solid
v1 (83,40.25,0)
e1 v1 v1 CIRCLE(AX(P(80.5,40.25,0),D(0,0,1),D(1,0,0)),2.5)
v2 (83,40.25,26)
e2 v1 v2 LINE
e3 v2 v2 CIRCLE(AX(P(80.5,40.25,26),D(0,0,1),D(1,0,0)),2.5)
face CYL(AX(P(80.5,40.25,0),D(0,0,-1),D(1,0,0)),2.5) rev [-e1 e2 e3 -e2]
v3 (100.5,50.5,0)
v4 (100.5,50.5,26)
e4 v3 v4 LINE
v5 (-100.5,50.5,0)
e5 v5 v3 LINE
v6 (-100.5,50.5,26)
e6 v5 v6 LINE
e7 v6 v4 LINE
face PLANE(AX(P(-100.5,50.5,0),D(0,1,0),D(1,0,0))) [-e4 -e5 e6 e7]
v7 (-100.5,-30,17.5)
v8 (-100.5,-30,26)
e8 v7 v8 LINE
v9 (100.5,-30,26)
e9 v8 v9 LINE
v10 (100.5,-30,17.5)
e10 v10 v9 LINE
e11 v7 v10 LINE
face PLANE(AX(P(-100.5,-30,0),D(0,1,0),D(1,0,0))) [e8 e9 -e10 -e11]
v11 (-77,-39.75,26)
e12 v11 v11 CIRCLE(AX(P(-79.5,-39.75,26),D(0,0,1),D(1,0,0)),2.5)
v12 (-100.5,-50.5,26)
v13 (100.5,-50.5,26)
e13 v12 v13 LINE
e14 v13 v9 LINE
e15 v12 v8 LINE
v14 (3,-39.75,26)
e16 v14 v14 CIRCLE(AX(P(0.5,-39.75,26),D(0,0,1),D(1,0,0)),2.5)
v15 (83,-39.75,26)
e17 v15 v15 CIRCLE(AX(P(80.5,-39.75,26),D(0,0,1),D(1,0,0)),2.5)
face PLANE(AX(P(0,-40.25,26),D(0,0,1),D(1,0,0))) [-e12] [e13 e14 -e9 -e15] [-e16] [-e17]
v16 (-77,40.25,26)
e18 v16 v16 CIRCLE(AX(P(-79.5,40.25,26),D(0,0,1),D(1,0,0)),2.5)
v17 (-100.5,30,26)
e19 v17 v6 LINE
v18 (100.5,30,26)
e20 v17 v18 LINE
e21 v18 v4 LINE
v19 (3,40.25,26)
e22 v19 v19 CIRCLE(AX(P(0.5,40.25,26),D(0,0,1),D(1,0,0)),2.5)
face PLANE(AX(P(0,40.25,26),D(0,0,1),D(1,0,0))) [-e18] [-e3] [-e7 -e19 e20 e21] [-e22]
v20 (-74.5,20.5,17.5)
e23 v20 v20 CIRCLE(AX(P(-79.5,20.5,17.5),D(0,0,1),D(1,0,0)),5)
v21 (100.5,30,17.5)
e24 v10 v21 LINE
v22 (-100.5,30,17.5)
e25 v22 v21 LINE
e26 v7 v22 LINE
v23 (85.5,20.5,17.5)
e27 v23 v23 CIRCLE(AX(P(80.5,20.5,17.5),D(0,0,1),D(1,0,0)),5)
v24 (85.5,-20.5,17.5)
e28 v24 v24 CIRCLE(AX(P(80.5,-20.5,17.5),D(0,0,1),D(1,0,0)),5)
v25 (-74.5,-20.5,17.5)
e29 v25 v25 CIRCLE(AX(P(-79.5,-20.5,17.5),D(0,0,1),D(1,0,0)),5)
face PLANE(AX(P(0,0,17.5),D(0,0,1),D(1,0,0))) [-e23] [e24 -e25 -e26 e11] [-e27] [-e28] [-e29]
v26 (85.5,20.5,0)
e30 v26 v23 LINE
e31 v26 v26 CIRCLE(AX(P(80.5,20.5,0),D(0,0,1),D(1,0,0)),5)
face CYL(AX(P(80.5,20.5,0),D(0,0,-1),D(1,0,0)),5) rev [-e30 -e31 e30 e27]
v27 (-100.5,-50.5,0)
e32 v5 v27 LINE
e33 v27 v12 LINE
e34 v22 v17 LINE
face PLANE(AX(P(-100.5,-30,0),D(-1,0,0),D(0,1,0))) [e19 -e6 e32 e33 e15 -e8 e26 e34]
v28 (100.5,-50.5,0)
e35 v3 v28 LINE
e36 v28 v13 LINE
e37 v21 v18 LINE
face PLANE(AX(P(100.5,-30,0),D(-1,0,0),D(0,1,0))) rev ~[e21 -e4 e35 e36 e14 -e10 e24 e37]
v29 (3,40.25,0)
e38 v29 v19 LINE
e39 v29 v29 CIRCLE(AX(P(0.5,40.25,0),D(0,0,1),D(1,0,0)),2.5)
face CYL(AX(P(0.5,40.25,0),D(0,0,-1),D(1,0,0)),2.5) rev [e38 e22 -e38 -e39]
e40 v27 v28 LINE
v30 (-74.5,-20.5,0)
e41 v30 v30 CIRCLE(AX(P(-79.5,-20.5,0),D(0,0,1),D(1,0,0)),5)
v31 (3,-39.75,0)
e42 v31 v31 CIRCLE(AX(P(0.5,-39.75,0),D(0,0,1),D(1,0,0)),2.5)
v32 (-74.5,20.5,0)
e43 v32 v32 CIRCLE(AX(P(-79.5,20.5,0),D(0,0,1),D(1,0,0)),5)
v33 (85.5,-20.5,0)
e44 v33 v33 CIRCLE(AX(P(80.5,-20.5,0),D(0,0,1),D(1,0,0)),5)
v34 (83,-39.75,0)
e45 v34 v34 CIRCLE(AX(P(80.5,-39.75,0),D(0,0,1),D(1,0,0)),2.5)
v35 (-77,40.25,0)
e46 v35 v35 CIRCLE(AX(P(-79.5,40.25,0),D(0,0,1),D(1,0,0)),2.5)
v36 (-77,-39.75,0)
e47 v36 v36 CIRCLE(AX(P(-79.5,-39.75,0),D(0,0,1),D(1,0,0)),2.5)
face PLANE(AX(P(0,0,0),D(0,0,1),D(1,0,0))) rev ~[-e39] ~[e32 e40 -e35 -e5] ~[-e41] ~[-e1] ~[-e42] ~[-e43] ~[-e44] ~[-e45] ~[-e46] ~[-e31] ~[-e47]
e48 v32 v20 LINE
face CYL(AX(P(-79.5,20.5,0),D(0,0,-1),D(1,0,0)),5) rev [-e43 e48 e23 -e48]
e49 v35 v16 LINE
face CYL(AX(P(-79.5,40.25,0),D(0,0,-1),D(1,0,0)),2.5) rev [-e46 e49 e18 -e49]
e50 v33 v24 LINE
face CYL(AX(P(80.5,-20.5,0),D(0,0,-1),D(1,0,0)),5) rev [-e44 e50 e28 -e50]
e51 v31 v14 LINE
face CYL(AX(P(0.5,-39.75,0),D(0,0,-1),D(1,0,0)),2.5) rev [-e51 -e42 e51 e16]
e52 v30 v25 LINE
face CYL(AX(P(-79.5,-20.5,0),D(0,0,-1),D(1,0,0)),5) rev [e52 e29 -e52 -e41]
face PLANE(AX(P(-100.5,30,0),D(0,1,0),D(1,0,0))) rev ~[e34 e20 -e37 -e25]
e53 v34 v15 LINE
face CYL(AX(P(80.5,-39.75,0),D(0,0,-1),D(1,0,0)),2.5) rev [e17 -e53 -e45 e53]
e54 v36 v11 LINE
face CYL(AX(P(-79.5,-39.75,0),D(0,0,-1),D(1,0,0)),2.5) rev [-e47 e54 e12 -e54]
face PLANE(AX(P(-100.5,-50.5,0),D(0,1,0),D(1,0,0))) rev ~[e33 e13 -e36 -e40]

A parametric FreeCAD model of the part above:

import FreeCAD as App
import Part
import Sketcher

V = App.Vector

doc = App.newDocument("Part")
params = doc.addObject("Spreadsheet::Sheet", "Params")
for row, (alias, value) in enumerate([
    ("sketch1_diameter", "5 mm"),
    ("sketch1_width", "201 mm"),
    ("sketch1_height", "20.5 mm"),
    ("pad1_length", "26 mm"),
    ("sketch2_diameter", "10 mm"),
    ("sketch2_width", "201 mm"),
    ("sketch2_height", "60 mm"),
    ("pad2_length", "17.5 mm"),
], start=1):
    params.set(f"A{row}", alias)
    params.set(f"B{row}", "=" + value)
    params.setAlias(f"B{row}", alias)

body = doc.addObject("PartDesign::Body", "Body")
body.AllowCompound = True

sketch1 = doc.addObject("Sketcher::SketchObject", "Sketch")
body.addObject(sketch1)
sketch1.AttachmentSupport = (doc.XY_Plane, [""])
sketch1.MapMode = "FlatFace"
sketch1.addGeometry([
    Part.LineSegment(V(-100.5, 50.5, 0), V(-100.5, 30, 0)),
    Part.LineSegment(V(-100.5, 30, 0), V(100.5, 30, 0)),
    Part.LineSegment(V(100.5, 30, 0), V(100.5, 50.5, 0)),
    Part.LineSegment(V(100.5, 50.5, 0), V(-100.5, 50.5, 0)),
    Part.Circle(V(-79.5, 40.25, 0), V(0, 0, 1), 2.5),
    Part.Circle(V(0.5, 40.25, 0), V(0, 0, 1), 2.5),
    Part.Circle(V(80.5, 40.25, 0), V(0, 0, 1), 2.5),
    Part.LineSegment(V(-100.5, -30, 0), V(-100.5, -50.5, 0)),
    Part.LineSegment(V(-100.5, -50.5, 0), V(100.5, -50.5, 0)),
    Part.LineSegment(V(100.5, -50.5, 0), V(100.5, -30, 0)),
    Part.LineSegment(V(100.5, -30, 0), V(-100.5, -30, 0)),
    Part.Circle(V(-79.5, -39.75, 0), V(0, 0, 1), 2.5),
    Part.Circle(V(0.5, -39.75, 0), V(0, 0, 1), 2.5),
    Part.Circle(V(80.5, -39.75, 0), V(0, 0, 1), 2.5),
], False)
sketch1.addConstraint([
    Sketcher.Constraint("Coincident", 0, 2, 1, 1),
    Sketcher.Constraint("Coincident", 1, 2, 2, 1),
    Sketcher.Constraint("Coincident", 2, 2, 3, 1),
    Sketcher.Constraint("Coincident", 3, 2, 0, 1),
    Sketcher.Constraint("Coincident", 7, 2, 8, 1),
    Sketcher.Constraint("Coincident", 8, 2, 9, 1),
    Sketcher.Constraint("Coincident", 9, 2, 10, 1),
    Sketcher.Constraint("Coincident", 10, 2, 7, 1),
    Sketcher.Constraint("Vertical", 0),
    Sketcher.Constraint("Horizontal", 1),
    Sketcher.Constraint("Vertical", 2),
    Sketcher.Constraint("Horizontal", 3),
    Sketcher.Constraint("Vertical", 7),
    Sketcher.Constraint("Horizontal", 8),
    Sketcher.Constraint("Vertical", 9),
    Sketcher.Constraint("Horizontal", 10),
    Sketcher.Constraint("Equal", 4, 5),
    Sketcher.Constraint("Equal", 5, 6),
    Sketcher.Constraint("Equal", 6, 11),
    Sketcher.Constraint("Equal", 11, 12),
    Sketcher.Constraint("Equal", 12, 13),
    Sketcher.Constraint("Symmetric", 2, 2, 7, 2, -1, 1),
    Sketcher.Constraint("Symmetric", 0, 2, 9, 2, -1, 1),
    Sketcher.Constraint("Horizontal", 4, 3, 5, 3),
    Sketcher.Constraint("Horizontal", 5, 3, 6, 3),
    Sketcher.Constraint("Horizontal", 11, 3, 12, 3),
    Sketcher.Constraint("Horizontal", 12, 3, 13, 3),
    Sketcher.Constraint("Vertical", 4, 3, 11, 3),
    Sketcher.Constraint("Vertical", 5, 3, 12, 3),
    Sketcher.Constraint("Vertical", 6, 3, 13, 3),
    Sketcher.Constraint("Vertical", 3, 2, 7, 2),
    Sketcher.Constraint("Diameter", 4, 5.0),
    Sketcher.Constraint("DistanceX", 1, 1, 1, 2, 201.0),
    Sketcher.Constraint("DistanceY", 0, 2, 0, 1, 20.5),
    Sketcher.Constraint("DistanceY", -1, 1, 0, 2, 30.0),
    Sketcher.Constraint("DistanceX", 4, 3, 5, 3, 80.0),
    Sketcher.Constraint("DistanceX", 5, 3, 6, 3, 80.0),
    Sketcher.Constraint("DistanceY", 11, 3, 4, 3, 80.0),
    Sketcher.Constraint("DistanceX", 0, 2, 4, 3, 21.0),
    Sketcher.Constraint("DistanceY", -1, 1, 4, 3, 40.25),
])
sketch1.setExpression("Constraints[31]", "Params.sketch1_diameter")
sketch1.setExpression("Constraints[32]", "Params.sketch1_width")
sketch1.setExpression("Constraints[33]", "Params.sketch1_height")
pad1 = doc.addObject("PartDesign::Pad", "Pad")
body.addObject(pad1)
pad1.Profile = sketch1
pad1.setExpression("Length", "Params.pad1_length")

sketch2 = doc.addObject("Sketcher::SketchObject", "Sketch001")
body.addObject(sketch2)
sketch2.AttachmentSupport = (doc.XY_Plane, [""])
sketch2.MapMode = "FlatFace"
sketch2.addGeometry([
    Part.LineSegment(V(-100.5, 30, 0), V(-100.5, -30, 0)),
    Part.LineSegment(V(-100.5, -30, 0), V(100.5, -30, 0)),
    Part.LineSegment(V(100.5, -30, 0), V(100.5, 30, 0)),
    Part.LineSegment(V(100.5, 30, 0), V(-100.5, 30, 0)),
    Part.Circle(V(-79.5, -20.5, 0), V(0, 0, 1), 5),
    Part.Circle(V(80.5, -20.5, 0), V(0, 0, 1), 5),
    Part.Circle(V(-79.5, 20.5, 0), V(0, 0, 1), 5),
    Part.Circle(V(80.5, 20.5, 0), V(0, 0, 1), 5),
], False)
sketch2.addConstraint([
    Sketcher.Constraint("Coincident", 0, 2, 1, 1),
    Sketcher.Constraint("Coincident", 1, 2, 2, 1),
    Sketcher.Constraint("Coincident", 2, 2, 3, 1),
    Sketcher.Constraint("Coincident", 3, 2, 0, 1),
    Sketcher.Constraint("Vertical", 0),
    Sketcher.Constraint("Horizontal", 1),
    Sketcher.Constraint("Vertical", 2),
    Sketcher.Constraint("Horizontal", 3),
    Sketcher.Constraint("Equal", 4, 5),
    Sketcher.Constraint("Equal", 5, 6),
    Sketcher.Constraint("Equal", 6, 7),
    Sketcher.Constraint("Symmetric", 0, 2, 2, 2, -1, 1),
    Sketcher.Constraint("Symmetric", 4, 3, 6, 3, -1),
    Sketcher.Constraint("Symmetric", 5, 3, 7, 3, -1),
    Sketcher.Constraint("Horizontal", 4, 3, 5, 3),
    Sketcher.Constraint("Diameter", 4, 10.0),
    Sketcher.Constraint("DistanceX", 1, 1, 1, 2, 201.0),
    Sketcher.Constraint("DistanceY", 0, 2, 0, 1, 60.0),
    Sketcher.Constraint("DistanceX", 4, 3, 5, 3, 160.0),
    Sketcher.Constraint("DistanceY", 4, 3, 6, 3, 41.0),
    Sketcher.Constraint("DistanceX", 0, 2, 4, 3, 21.0),
])
sketch2.setExpression("Constraints[15]", "Params.sketch2_diameter")
sketch2.setExpression("Constraints[16]", "Params.sketch2_width")
sketch2.setExpression("Constraints[17]", "Params.sketch2_height")
pad2 = doc.addObject("PartDesign::Pad", "Pad001")
body.addObject(pad2)
pad2.Profile = sketch2
pad2.setExpression("Length", "Params.pad2_length")

doc.recompute()
